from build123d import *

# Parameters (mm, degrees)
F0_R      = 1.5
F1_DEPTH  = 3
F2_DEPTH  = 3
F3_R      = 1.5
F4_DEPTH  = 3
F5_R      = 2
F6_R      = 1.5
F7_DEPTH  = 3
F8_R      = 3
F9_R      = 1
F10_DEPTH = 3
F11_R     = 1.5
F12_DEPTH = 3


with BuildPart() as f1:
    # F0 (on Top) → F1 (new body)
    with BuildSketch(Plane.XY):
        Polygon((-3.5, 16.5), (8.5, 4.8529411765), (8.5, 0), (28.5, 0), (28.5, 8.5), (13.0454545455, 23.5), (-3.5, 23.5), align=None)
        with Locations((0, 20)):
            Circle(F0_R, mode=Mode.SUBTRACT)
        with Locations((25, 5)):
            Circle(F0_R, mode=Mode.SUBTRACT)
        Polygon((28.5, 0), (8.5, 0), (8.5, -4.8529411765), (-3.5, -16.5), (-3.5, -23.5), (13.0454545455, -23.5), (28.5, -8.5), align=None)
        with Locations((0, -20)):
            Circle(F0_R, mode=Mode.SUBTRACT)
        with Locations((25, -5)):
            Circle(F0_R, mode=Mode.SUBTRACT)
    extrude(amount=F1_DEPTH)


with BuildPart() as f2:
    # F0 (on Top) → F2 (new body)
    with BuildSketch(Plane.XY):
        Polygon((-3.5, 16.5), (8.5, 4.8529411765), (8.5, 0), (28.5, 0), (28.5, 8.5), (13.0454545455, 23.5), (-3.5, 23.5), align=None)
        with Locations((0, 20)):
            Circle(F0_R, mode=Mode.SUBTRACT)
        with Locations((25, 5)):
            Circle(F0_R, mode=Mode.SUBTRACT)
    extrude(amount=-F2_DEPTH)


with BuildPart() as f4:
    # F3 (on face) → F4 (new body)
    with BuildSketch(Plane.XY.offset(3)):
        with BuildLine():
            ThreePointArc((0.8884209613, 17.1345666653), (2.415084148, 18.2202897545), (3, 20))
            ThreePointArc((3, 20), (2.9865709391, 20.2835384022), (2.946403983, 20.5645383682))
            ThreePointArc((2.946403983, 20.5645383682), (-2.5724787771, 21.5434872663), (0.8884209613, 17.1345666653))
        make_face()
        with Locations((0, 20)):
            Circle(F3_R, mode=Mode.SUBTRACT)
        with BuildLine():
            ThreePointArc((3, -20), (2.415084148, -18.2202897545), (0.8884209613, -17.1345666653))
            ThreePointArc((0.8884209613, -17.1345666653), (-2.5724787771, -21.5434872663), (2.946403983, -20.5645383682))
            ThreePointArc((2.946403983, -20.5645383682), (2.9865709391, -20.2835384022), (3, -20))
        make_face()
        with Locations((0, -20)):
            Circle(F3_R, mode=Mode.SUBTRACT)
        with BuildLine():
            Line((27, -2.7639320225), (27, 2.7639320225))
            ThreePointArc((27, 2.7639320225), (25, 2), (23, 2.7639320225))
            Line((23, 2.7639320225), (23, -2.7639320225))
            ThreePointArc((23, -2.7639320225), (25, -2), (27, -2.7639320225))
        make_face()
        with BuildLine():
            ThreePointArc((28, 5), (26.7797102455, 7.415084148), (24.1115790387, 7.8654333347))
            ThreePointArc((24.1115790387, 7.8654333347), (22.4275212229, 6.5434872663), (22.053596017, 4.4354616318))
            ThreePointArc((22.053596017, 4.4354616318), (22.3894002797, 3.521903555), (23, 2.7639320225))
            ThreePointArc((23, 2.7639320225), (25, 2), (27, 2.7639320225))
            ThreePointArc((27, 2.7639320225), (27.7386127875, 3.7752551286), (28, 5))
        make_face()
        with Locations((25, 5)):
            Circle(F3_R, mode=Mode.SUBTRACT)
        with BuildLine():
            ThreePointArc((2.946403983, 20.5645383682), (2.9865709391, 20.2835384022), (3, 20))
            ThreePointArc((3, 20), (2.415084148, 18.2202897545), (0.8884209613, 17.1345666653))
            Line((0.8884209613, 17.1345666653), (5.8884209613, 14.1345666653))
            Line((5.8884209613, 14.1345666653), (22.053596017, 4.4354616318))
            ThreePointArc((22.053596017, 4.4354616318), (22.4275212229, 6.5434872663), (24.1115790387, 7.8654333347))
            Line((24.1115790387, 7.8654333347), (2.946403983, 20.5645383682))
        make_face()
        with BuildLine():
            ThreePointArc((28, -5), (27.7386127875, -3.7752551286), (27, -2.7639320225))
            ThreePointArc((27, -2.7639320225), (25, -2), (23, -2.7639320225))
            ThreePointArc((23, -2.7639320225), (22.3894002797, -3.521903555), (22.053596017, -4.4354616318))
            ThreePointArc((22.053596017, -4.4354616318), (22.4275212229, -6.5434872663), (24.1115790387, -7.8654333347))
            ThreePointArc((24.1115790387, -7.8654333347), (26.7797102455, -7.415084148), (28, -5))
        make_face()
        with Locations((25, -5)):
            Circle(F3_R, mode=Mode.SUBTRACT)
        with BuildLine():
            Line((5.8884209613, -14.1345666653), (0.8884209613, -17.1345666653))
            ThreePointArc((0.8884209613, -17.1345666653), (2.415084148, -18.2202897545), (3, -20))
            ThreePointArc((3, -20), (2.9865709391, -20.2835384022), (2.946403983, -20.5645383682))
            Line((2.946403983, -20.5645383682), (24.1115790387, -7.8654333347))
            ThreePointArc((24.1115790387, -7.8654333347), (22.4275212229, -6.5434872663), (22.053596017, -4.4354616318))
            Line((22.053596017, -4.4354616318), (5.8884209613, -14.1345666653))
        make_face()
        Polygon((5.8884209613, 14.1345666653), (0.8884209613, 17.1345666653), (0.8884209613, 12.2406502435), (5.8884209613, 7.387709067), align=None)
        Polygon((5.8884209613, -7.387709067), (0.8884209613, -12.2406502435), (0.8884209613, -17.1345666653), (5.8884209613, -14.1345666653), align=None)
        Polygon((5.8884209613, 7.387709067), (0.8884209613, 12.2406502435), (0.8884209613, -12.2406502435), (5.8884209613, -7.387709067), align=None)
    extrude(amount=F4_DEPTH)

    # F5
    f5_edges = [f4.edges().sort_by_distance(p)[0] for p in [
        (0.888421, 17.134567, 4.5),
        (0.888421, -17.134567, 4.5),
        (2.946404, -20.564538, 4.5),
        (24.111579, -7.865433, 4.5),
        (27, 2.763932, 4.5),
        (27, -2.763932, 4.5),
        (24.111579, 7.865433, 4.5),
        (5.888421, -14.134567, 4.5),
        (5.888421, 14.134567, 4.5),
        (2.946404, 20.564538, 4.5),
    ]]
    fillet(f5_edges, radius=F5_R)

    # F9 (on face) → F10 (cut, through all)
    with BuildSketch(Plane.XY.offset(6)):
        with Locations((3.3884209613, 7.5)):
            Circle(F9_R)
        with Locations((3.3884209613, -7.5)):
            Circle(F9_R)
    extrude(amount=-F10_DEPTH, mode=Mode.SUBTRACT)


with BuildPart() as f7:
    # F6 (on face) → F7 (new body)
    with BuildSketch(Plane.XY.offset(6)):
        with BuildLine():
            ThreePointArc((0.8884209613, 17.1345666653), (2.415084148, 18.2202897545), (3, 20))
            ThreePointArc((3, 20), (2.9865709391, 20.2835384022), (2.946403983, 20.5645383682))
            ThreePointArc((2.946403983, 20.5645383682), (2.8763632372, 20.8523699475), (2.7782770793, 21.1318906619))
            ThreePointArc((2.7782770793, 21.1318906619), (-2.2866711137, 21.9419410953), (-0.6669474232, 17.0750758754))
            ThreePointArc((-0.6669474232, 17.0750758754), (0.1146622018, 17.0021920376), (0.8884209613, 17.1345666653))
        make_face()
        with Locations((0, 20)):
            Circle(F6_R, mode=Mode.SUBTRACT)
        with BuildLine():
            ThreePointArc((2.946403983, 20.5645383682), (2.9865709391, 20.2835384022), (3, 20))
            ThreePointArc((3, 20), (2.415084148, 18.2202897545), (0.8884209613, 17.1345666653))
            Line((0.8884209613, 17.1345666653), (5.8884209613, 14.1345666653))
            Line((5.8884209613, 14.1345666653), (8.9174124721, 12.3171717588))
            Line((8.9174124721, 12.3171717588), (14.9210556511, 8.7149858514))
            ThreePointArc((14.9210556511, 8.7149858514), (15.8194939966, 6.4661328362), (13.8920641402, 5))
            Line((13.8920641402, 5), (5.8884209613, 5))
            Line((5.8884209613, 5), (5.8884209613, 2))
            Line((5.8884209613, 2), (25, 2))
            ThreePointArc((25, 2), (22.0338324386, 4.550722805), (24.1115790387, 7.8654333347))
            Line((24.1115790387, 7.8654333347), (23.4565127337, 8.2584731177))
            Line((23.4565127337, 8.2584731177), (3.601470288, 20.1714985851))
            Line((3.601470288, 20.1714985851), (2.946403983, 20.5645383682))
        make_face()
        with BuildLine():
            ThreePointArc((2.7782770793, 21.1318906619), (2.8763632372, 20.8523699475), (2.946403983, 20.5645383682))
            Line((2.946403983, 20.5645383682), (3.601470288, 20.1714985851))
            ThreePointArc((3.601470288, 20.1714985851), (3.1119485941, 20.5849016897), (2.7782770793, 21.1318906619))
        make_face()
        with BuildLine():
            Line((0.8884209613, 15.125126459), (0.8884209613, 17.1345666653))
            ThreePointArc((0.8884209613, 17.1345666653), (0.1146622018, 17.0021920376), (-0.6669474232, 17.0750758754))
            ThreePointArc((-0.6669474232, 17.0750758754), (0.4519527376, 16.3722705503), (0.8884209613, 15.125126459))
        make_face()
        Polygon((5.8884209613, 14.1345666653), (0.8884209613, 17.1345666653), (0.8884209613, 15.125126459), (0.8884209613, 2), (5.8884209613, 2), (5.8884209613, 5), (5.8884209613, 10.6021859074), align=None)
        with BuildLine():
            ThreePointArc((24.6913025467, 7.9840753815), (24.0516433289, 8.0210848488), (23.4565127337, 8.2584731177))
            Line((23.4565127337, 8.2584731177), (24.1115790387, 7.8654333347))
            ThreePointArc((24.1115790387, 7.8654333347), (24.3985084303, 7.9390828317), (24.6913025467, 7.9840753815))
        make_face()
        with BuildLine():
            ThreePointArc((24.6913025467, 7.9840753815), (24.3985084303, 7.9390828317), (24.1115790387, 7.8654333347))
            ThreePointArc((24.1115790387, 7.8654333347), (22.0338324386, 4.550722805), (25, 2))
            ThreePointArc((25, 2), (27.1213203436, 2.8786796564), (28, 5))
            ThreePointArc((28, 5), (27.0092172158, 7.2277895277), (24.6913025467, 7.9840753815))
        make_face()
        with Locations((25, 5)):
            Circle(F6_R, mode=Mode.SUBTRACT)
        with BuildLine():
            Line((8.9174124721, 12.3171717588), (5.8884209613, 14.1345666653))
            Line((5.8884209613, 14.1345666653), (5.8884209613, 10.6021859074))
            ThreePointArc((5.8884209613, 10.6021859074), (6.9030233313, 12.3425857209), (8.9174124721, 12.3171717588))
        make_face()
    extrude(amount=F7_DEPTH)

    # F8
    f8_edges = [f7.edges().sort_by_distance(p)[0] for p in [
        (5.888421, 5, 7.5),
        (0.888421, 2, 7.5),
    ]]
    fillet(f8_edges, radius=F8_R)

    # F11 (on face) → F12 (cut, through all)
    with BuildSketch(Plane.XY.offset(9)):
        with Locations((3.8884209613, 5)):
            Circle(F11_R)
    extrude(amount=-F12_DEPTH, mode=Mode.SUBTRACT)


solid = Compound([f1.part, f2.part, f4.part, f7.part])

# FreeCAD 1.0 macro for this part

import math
import FreeCAD as App
import Part
import Sketcher
from FreeCAD import Vector


def edges_at(feature, points):
    """Names of the edges that pass closest to the given points."""
    edges = feature.Shape.Edges
    near = lambda p: min(range(len(edges)), key=lambda i: edges[i].distToShape(Part.Vertex(*p))[0])
    return sorted({f"Edge{near(p) + 1}" for p in points})


def add_polygon(sketch, points):
    """Adds a closed chain of lines whose ends are joined by coincident constraints."""
    first, n = sketch.GeometryCount, len(points)
    for a, b in zip(points, points[1:] + points[:1]):
        sketch.addGeometry(Part.LineSegment(App.Vector(*a, 0), App.Vector(*b, 0)), False)
    for i in range(n):
        sketch.addConstraint(Sketcher.Constraint("Coincident", first + i, 2, first + (i + 1) % n, 1))

doc = App.newDocument("Part")
body = doc.addObject("PartDesign::Body", "Body")

sketch1 = body.newObject("Sketcher::SketchObject", "Sketch")
sketch1.AttachmentSupport = (doc.getObject("XY_Plane"), [""])
sketch1.MapMode = "FlatFace"
add_polygon(sketch1, [(-3.5, 16.5), (8.5, 4.9), (8.5, -4.9), (-3.5, -16.5), (-3.5, -23.5), (13, -23.5), (28.5, -8.5), (28.5, 8.5), (13, 23.5), (-3.5, 23.5)])
sketch1.addGeometry(Part.Circle(Vector(0, -20, 0), Vector(0, 0, 1), 1.5), False)
sketch1.addGeometry(Part.Circle(Vector(25, -5, 0), Vector(0, 0, 1), 1.5), False)
sketch1.addGeometry(Part.Circle(Vector(0, 20, 0), Vector(0, 0, 1), 1.5), False)
sketch1.addGeometry(Part.Circle(Vector(25, 5, 0), Vector(0, 0, 1), 1.5), False)
sketch1.addConstraint([
    Sketcher.Constraint("Vertical", 1),
    Sketcher.Constraint("Vertical", 3),
    Sketcher.Constraint("Horizontal", 4),
    Sketcher.Constraint("Vertical", 6),
    Sketcher.Constraint("Horizontal", 8),
    Sketcher.Constraint("Vertical", 9),
    Sketcher.Constraint("Equal", 10, 11),
    Sketcher.Constraint("Equal", 11, 12),
    Sketcher.Constraint("Equal", 12, 13),
    Sketcher.Constraint("Symmetric", 10, 3, 12, 3, -1, 1),
    Sketcher.Constraint("Symmetric", 11, 3, 13, 3, -1),
    Sketcher.Constraint("Symmetric", 4, 2, 7, 2, -1),
    Sketcher.Constraint("Symmetric", 2, 2, 9, 2, -1),
    Sketcher.Constraint("PointOnObject", 10, 3, -2),
    Sketcher.Constraint("Parallel", 2, 5),
    Sketcher.Constraint("Parallel", 0, 7),
    Sketcher.Constraint("Equal", 0, 2),
    Sketcher.Constraint("Diameter", 10, 3.0),
    Sketcher.Constraint("DistanceY", 3, 2, 3, 1, 7.0),
    Sketcher.Constraint("DistanceY", 6, 1, 6, 2, 17.0),
    Sketcher.Constraint("DistanceY", 10, 3, -1, 1, 20.0),
    Sketcher.Constraint("DistanceX", -1, 1, 11, 3, 25.0),
    Sketcher.Constraint("DistanceY", 11, 3, -1, 1, 5.0),
    Sketcher.Constraint("DistanceX", 2, 2, 1, 2, 12.0),
    Sketcher.Constraint("DistanceX", 1, 2, 5, 2, 20.0),
    Sketcher.Constraint("DistanceY", 4, 2, 5, 2, 15.0),
    Sketcher.Constraint("DistanceX", -1, 1, 0, 2, 8.5),
    Sketcher.Constraint("DistanceX", 4, 1, 4, 2, 16.545455),
])
pad1 = body.newObject("PartDesign::Pad", "Pad")
pad1.Profile = sketch1
pad1.Length = 3
body2 = doc.addObject("PartDesign::Body", "Body001")

sketch2 = body2.newObject("Sketcher::SketchObject", "Sketch001")
sketch2.AttachmentSupport = (doc.getObject("XY_Plane001"), [""])
sketch2.MapMode = "FlatFace"
add_polygon(sketch2, [(-3.5, 16.5), (8.5, 4.9), (8.5, 0), (28.5, 0), (28.5, 8.5), (13, 23.5), (-3.5, 23.5)])
sketch2.addGeometry(Part.Circle(Vector(25, 5, 0), Vector(0, 0, 1), 1.5), False)
sketch2.addGeometry(Part.Circle(Vector(0, 20, 0), Vector(0, 0, 1), 1.5), False)
sketch2.addConstraint([
    Sketcher.Constraint("Vertical", 1),
    Sketcher.Constraint("Horizontal", 2),
    Sketcher.Constraint("Vertical", 3),
    Sketcher.Constraint("Horizontal", 5),
    Sketcher.Constraint("Vertical", 6),
    Sketcher.Constraint("Equal", 7, 8),
    Sketcher.Constraint("PointOnObject", 8, 3, -2),
    Sketcher.Constraint("PointOnObject", 1, 2, -1),
    Sketcher.Constraint("Parallel", 0, 4),
    Sketcher.Constraint("Diameter", 7, 3.0),
    Sketcher.Constraint("DistanceX", 2, 1, 2, 2, 20.0),
    Sketcher.Constraint("DistanceY", 6, 2, 6, 1, 7.0),
    Sketcher.Constraint("DistanceY", 3, 1, 3, 2, 8.5),
    Sketcher.Constraint("DistanceX", -1, 1, 7, 3, 25.0),
    Sketcher.Constraint("DistanceY", -1, 1, 7, 3, 5.0),
    Sketcher.Constraint("DistanceY", -1, 1, 8, 3, 20.0),
    Sketcher.Constraint("DistanceY", 3, 2, 4, 2, 15.0),
    Sketcher.Constraint("DistanceX", 5, 2, 0, 2, 12.0),
    Sketcher.Constraint("DistanceX", -1, 1, 0, 2, 8.5),
    Sketcher.Constraint("DistanceY", 1, 2, 1, 1, 4.852941),
])
pad2 = body2.newObject("PartDesign::Pad", "Pad001")
pad2.Profile = sketch2
pad2.Length = 3
pad2.Reversed = True
body3 = doc.addObject("PartDesign::Body", "Body002")

sketch3 = body3.newObject("Sketcher::SketchObject", "Sketch002")
sketch3.AttachmentSupport = (doc.getObject("XY_Plane002"), [""])
sketch3.MapMode = "FlatFace"
sketch3.AttachmentOffset = App.Placement(Vector(0, 0, 3), App.Rotation())
sketch3.addGeometry([
    Part.ArcOfCircle(Part.Circle(Vector(0, 20, 0), Vector(0, 0, 1), 3), math.radians(11), math.radians(287)),
    Part.LineSegment(Vector(0.9, 17.1, 0), Vector(0.9, -17.1, 0)),
    Part.ArcOfCircle(Part.Circle(Vector(0, -20, 0), Vector(0, 0, 1), 3), math.radians(73), math.radians(349)),
    Part.LineSegment(Vector(2.9, -20.6, 0), Vector(24.1, -7.9, 0)),
    Part.ArcOfCircle(Part.Circle(Vector(25, -5, 0), Vector(0, 0, 1), 3), math.radians(-107), math.radians(0)),
    Part.ArcOfCircle(Part.Circle(Vector(25, -5, 0), Vector(0, 0, 1), 3), math.radians(0), math.radians(48)),
    Part.LineSegment(Vector(27, -2.8, 0), Vector(27, 2.8, 0)),
    Part.ArcOfCircle(Part.Circle(Vector(25, 5, 0), Vector(0, 0, 1), 3), math.radians(-48), math.radians(0)),
    Part.ArcOfCircle(Part.Circle(Vector(25, 5, 0), Vector(0, 0, 1), 3), math.radians(0), math.radians(107)),
    Part.LineSegment(Vector(24.1, 7.9, 0), Vector(2.9, 20.6, 0)),
    Part.LineSegment(Vector(5.9, 14.1, 0), Vector(22.1, 4.4, 0)),
    Part.ArcOfCircle(Part.Circle(Vector(25, 5, 0), Vector(0, 0, 1), 3), math.radians(-169), math.radians(-132)),
    Part.LineSegment(Vector(23, 2.8, 0), Vector(23, -2.8, 0)),
    Part.ArcOfCircle(Part.Circle(Vector(25, -5, 0), Vector(0, 0, 1), 3), math.radians(132), math.radians(169)),
    Part.LineSegment(Vector(22.1, -4.4, 0), Vector(5.9, -14.1, 0)),
    Part.LineSegment(Vector(5.9, -14.1, 0), Vector(5.9, 14.1, 0)),
    Part.Circle(Vector(25, -5, 0), Vector(0, 0, 1), 1.5),
    Part.Circle(Vector(25, 5, 0), Vector(0, 0, 1), 1.5),
    Part.Circle(Vector(0, 20, 0), Vector(0, 0, 1), 1.5),
    Part.Circle(Vector(0, -20, 0), Vector(0, 0, 1), 1.5),
], False)
sketch3.addConstraint([
    Sketcher.Constraint("Coincident", 0, 2, 1, 1),
    Sketcher.Constraint("Coincident", 1, 2, 2, 1),
    Sketcher.Constraint("Coincident", 2, 2, 3, 1),
    Sketcher.Constraint("Coincident", 3, 2, 4, 1),
    Sketcher.Constraint("Tangent", 4, 2, 5, 1),
    Sketcher.Constraint("Coincident", 5, 2, 6, 1),
    Sketcher.Constraint("Coincident", 6, 2, 7, 1),
    Sketcher.Constraint("Tangent", 7, 2, 8, 1),
    Sketcher.Constraint("Coincident", 8, 2, 9, 1),
    Sketcher.Constraint("Coincident", 9, 2, 0, 1),
    Sketcher.Constraint("Coincident", 10, 2, 11, 1),
    Sketcher.Constraint("Coincident", 11, 2, 12, 1),
    Sketcher.Constraint("Coincident", 12, 2, 13, 1),
    Sketcher.Constraint("Coincident", 13, 2, 14, 1),
    Sketcher.Constraint("Coincident", 14, 2, 15, 1),
    Sketcher.Constraint("Coincident", 15, 2, 10, 1),
    Sketcher.Constraint("Vertical", 1),
    Sketcher.Constraint("Vertical", 6),
    Sketcher.Constraint("Vertical", 12),
    Sketcher.Constraint("Vertical", 15),
    Sketcher.Constraint("Coincident", 11, 3, 7, 3),
    Sketcher.Constraint("Coincident", 13, 3, 4, 3),
    Sketcher.Constraint("Coincident", 16, 3, 4, 3),
    Sketcher.Constraint("Coincident", 17, 3, 7, 3),
    Sketcher.Constraint("Coincident", 18, 3, 0, 3),
    Sketcher.Constraint("Coincident", 19, 3, 2, 3),
    Sketcher.Constraint("Equal", 0, 2),
    Sketcher.Constraint("Equal", 2, 4),
    Sketcher.Constraint("Equal", 4, 5),
    Sketcher.Constraint("Equal", 5, 7),
    Sketcher.Constraint("Equal", 7, 8),
    Sketcher.Constraint("Equal", 8, 11),
    Sketcher.Constraint("Equal", 11, 13),
    Sketcher.Constraint("Equal", 16, 17),
    Sketcher.Constraint("Equal", 17, 18),
    Sketcher.Constraint("Equal", 18, 19),
    Sketcher.Constraint("Symmetric", 0, 3, 2, 3, -1, 1),
    Sketcher.Constraint("Symmetric", 4, 3, 7, 3, -1),
    Sketcher.Constraint("Symmetric", 2, 2, 9, 2, -1),
    Sketcher.Constraint("Parallel", 9, 10),
    Sketcher.Constraint("Parallel", 3, 14),
    Sketcher.Constraint("Horizontal", 16, 3, 4, 2),
    Sketcher.Constraint("Horizontal", 17, 3, 7, 2),
    Sketcher.Constraint("Horizontal", 6, 2, 11, 2),
    Sketcher.Constraint("Vertical", 3, 2, 8, 2),
    Sketcher.Constraint("Vertical", 10, 2, 13, 2),
    Sketcher.Constraint("Diameter", 16, 3.0),
    Sketcher.Constraint("Radius", 0, 3.0),
    Sketcher.Constraint("DistanceY", -1, 1, 0, 3, 20.0),
    Sketcher.Constraint("DistanceX", -1, 1, 4, 3, 25.0),
    Sketcher.Constraint("DistanceY", 4, 3, -1, 1, 5.0),
    Sketcher.Constraint("DistanceX", -1, 1, 5, 2, 27.0),
    Sketcher.Constraint("DistanceX", 1, 2, 14, 2, 5.0),
    Sketcher.Constraint("DistanceY", 1, 2, 14, 2, 3.0),
    Sketcher.Constraint("Distance", 10, 18.851672),
    Sketcher.Constraint("DistanceY", 1, 2, 1, 1, 34.269133),
    Sketcher.Constraint("DistanceY", 2, 2, -1, 1, 20.564538),
])
pad3 = body3.newObject("PartDesign::Pad", "Pad002")
pad3.Profile = sketch3
pad3.Length = 3
doc.recompute()

fillet = body3.newObject("PartDesign::Fillet", "Fillet")
fillet.Base = (pad3, edges_at(pad3, [
    (0.888, 17.135, 4.5),
    (0.888, -17.135, 4.5),
    (2.946, -20.565, 4.5),
    (24.112, -7.865, 4.5),
    (27, 2.764, 4.5),
    (27, -2.764, 4.5),
    (24.112, 7.865, 4.5),
    (5.888, -14.135, 4.5),
    (5.888, 14.135, 4.5),
    (2.946, 20.565, 4.5),
]))
fillet.Radius = 2

sketch4 = body3.newObject("Sketcher::SketchObject", "Sketch003")
sketch4.AttachmentSupport = (doc.getObject("XY_Plane002"), [""])
sketch4.MapMode = "FlatFace"
sketch4.AttachmentOffset = App.Placement(Vector(0, 0, 6), App.Rotation())
sketch4.addGeometry([
    Part.Circle(Vector(3.4, 7.5, 0), Vector(0, 0, 1), 1),
    Part.Circle(Vector(3.4, -7.5, 0), Vector(0, 0, 1), 1),
], False)
sketch4.addConstraint([
    Sketcher.Constraint("Equal", 0, 1),
    Sketcher.Constraint("Symmetric", 0, 3, 1, 3, -1),
    Sketcher.Constraint("Diameter", 0, 2.0),
    Sketcher.Constraint("DistanceY", 1, 3, 0, 3, 15.0),
    Sketcher.Constraint("DistanceX", -1, 1, 0, 3, 3.388421),
])
pocket1 = body3.newObject("PartDesign::Pocket", "Pocket")
pocket1.Profile = sketch4
pocket1.Type = "ThroughAll"
body4 = doc.addObject("PartDesign::Body", "Body003")

sketch5 = body4.newObject("Sketcher::SketchObject", "Sketch004")
sketch5.AttachmentSupport = (doc.getObject("XY_Plane003"), [""])
sketch5.MapMode = "FlatFace"
sketch5.AttachmentOffset = App.Placement(Vector(0, 0, 6), App.Rotation())
sketch5.addGeometry([
    Part.ArcOfCircle(Part.Circle(Vector(24.5, 10, 0), Vector(0, 0, 1), 2), math.radians(-121), math.radians(-84)),
    Part.LineSegment(Vector(23.5, 8.3, 0), Vector(3.6, 20.2, 0)),
    Part.ArcOfCircle(Part.Circle(Vector(4.6, 21.9, 0), Vector(0, 0, 1), 2), math.radians(-158), math.radians(-121)),
    Part.ArcOfCircle(Part.Circle(Vector(0, 20, 0), Vector(0, 0, 1), 3), math.radians(22), math.radians(257)),
    Part.ArcOfCircle(Part.Circle(Vector(-1.1, 15.1, 0), Vector(0, 0, 1), 2), math.radians(0), math.radians(77)),
    Part.LineSegment(Vector(0.9, 15.1, 0), Vector(0.9, 2, 0)),
    Part.LineSegment(Vector(0.9, 2, 0), Vector(25, 2, 0)),
    Part.ArcOfCircle(Part.Circle(Vector(25, 5, 0), Vector(0, 0, 1), 3), math.radians(-90), math.radians(0)),
    Part.ArcOfCircle(Part.Circle(Vector(25, 5, 0), Vector(0, 0, 1), 3), math.radians(0), math.radians(96)),
    Part.LineSegment(Vector(5.9, 5, 0), Vector(5.9, 10.6, 0)),
    Part.ArcOfCircle(Part.Circle(Vector(7.9, 10.6, 0), Vector(0, 0, 1), 2), math.radians(59), math.radians(180)),
    Part.LineSegment(Vector(8.9, 12.3, 0), Vector(14.9, 8.7, 0)),
    Part.ArcOfCircle(Part.Circle(Vector(13.9, 7, 0), Vector(0, 0, 1), 2), math.radians(-90), math.radians(59)),
    Part.LineSegment(Vector(13.9, 5, 0), Vector(5.9, 5, 0)),
    Part.Circle(Vector(25, 5, 0), Vector(0, 0, 1), 1.5),
    Part.Circle(Vector(0, 20, 0), Vector(0, 0, 1), 1.5),
], False)
sketch5.addConstraint([
    Sketcher.Constraint("Tangent", 0, 1, 1, 1),
    Sketcher.Constraint("Tangent", 1, 2, 2, 2),
    Sketcher.Constraint("Tangent", 2, 1, 3, 1),
    Sketcher.Constraint("Tangent", 3, 2, 4, 2),
    Sketcher.Constraint("Tangent", 4, 1, 5, 1),
    Sketcher.Constraint("Coincident", 5, 2, 6, 1),
    Sketcher.Constraint("Tangent", 6, 2, 7, 1),
    Sketcher.Constraint("Tangent", 7, 2, 8, 1),
    Sketcher.Constraint("Tangent", 8, 2, 0, 2),
    Sketcher.Constraint("Tangent", 9, 2, 10, 2),
    Sketcher.Constraint("Tangent", 10, 1, 11, 1),
    Sketcher.Constraint("Tangent", 11, 2, 12, 2),
    Sketcher.Constraint("Tangent", 12, 1, 13, 1),
    Sketcher.Constraint("Coincident", 13, 2, 9, 1),
    Sketcher.Constraint("Vertical", 5),
    Sketcher.Constraint("Horizontal", 6),
    Sketcher.Constraint("Vertical", 9),
    Sketcher.Constraint("Horizontal", 13),
    Sketcher.Constraint("Coincident", 14, 3, 7, 3),
    Sketcher.Constraint("Coincident", 15, 3, 3, 3),
    Sketcher.Constraint("Equal", 0, 2),
    Sketcher.Constraint("Equal", 2, 4),
    Sketcher.Constraint("Equal", 3, 7),
    Sketcher.Constraint("Equal", 7, 8),
    Sketcher.Constraint("Equal", 4, 10),
    Sketcher.Constraint("Equal", 10, 12),
    Sketcher.Constraint("Equal", 14, 15),
    Sketcher.Constraint("PointOnObject", 3, 3, -2),
    Sketcher.Constraint("Parallel", 1, 11),
    Sketcher.Constraint("Horizontal", 14, 3, 7, 2),
    Sketcher.Constraint("Horizontal", 7, 2, 12, 1),
    Sketcher.Constraint("Diameter", 14, 3.0),
    Sketcher.Constraint("Radius", 0, 2.0),
    Sketcher.Constraint("Radius", 3, 3.0),
    Sketcher.Constraint("DistanceY", -1, 1, 3, 3, 20.0),
    Sketcher.Constraint("DistanceX", -1, 1, 7, 3, 25.0),
    Sketcher.Constraint("DistanceY", -1, 1, 7, 3, 5.0),
    Sketcher.Constraint("DistanceX", 4, 3, 10, 3, 9.0),
    Sketcher.Constraint("DistanceX", 6, 1, 6, 2, 24.111579),
    Sketcher.Constraint("DistanceY", -1, 1, 1, 2, 20.171499),
    Sketcher.Constraint("DistanceY", 10, 3, 2, 3, 11.284299),
    Sketcher.Constraint("DistanceX", 0, 3, 8, 2, 0.205798),
])
pad4 = body4.newObject("PartDesign::Pad", "Pad003")
pad4.Profile = sketch5
pad4.Length = 3
doc.recompute()

fillet2 = body4.newObject("PartDesign::Fillet", "Fillet001")
fillet2.Base = (pad4, edges_at(pad4, [(5.888, 5, 7.5), (0.888, 2, 7.5)]))
fillet2.Radius = 3

sketch6 = body4.newObject("Sketcher::SketchObject", "Sketch005")
sketch6.AttachmentSupport = (doc.getObject("XY_Plane003"), [""])
sketch6.MapMode = "FlatFace"
sketch6.AttachmentOffset = App.Placement(Vector(0, 0, 9), App.Rotation())
sketch6.addGeometry(Part.Circle(Vector(3.9, 5, 0), Vector(0, 0, 1), 1.5), False)
sketch6.addConstraint([
    Sketcher.Constraint("Diameter", 0, 3.0),
    Sketcher.Constraint("DistanceY", -1, 1, 0, 3, 5.0),
    Sketcher.Constraint("DistanceX", -1, 1, 0, 3, 3.888421),
])
pocket2 = body4.newObject("PartDesign::Pocket", "Pocket001")
pocket2.Profile = sketch6
pocket2.Type = "ThroughAll"

doc.recompute()
